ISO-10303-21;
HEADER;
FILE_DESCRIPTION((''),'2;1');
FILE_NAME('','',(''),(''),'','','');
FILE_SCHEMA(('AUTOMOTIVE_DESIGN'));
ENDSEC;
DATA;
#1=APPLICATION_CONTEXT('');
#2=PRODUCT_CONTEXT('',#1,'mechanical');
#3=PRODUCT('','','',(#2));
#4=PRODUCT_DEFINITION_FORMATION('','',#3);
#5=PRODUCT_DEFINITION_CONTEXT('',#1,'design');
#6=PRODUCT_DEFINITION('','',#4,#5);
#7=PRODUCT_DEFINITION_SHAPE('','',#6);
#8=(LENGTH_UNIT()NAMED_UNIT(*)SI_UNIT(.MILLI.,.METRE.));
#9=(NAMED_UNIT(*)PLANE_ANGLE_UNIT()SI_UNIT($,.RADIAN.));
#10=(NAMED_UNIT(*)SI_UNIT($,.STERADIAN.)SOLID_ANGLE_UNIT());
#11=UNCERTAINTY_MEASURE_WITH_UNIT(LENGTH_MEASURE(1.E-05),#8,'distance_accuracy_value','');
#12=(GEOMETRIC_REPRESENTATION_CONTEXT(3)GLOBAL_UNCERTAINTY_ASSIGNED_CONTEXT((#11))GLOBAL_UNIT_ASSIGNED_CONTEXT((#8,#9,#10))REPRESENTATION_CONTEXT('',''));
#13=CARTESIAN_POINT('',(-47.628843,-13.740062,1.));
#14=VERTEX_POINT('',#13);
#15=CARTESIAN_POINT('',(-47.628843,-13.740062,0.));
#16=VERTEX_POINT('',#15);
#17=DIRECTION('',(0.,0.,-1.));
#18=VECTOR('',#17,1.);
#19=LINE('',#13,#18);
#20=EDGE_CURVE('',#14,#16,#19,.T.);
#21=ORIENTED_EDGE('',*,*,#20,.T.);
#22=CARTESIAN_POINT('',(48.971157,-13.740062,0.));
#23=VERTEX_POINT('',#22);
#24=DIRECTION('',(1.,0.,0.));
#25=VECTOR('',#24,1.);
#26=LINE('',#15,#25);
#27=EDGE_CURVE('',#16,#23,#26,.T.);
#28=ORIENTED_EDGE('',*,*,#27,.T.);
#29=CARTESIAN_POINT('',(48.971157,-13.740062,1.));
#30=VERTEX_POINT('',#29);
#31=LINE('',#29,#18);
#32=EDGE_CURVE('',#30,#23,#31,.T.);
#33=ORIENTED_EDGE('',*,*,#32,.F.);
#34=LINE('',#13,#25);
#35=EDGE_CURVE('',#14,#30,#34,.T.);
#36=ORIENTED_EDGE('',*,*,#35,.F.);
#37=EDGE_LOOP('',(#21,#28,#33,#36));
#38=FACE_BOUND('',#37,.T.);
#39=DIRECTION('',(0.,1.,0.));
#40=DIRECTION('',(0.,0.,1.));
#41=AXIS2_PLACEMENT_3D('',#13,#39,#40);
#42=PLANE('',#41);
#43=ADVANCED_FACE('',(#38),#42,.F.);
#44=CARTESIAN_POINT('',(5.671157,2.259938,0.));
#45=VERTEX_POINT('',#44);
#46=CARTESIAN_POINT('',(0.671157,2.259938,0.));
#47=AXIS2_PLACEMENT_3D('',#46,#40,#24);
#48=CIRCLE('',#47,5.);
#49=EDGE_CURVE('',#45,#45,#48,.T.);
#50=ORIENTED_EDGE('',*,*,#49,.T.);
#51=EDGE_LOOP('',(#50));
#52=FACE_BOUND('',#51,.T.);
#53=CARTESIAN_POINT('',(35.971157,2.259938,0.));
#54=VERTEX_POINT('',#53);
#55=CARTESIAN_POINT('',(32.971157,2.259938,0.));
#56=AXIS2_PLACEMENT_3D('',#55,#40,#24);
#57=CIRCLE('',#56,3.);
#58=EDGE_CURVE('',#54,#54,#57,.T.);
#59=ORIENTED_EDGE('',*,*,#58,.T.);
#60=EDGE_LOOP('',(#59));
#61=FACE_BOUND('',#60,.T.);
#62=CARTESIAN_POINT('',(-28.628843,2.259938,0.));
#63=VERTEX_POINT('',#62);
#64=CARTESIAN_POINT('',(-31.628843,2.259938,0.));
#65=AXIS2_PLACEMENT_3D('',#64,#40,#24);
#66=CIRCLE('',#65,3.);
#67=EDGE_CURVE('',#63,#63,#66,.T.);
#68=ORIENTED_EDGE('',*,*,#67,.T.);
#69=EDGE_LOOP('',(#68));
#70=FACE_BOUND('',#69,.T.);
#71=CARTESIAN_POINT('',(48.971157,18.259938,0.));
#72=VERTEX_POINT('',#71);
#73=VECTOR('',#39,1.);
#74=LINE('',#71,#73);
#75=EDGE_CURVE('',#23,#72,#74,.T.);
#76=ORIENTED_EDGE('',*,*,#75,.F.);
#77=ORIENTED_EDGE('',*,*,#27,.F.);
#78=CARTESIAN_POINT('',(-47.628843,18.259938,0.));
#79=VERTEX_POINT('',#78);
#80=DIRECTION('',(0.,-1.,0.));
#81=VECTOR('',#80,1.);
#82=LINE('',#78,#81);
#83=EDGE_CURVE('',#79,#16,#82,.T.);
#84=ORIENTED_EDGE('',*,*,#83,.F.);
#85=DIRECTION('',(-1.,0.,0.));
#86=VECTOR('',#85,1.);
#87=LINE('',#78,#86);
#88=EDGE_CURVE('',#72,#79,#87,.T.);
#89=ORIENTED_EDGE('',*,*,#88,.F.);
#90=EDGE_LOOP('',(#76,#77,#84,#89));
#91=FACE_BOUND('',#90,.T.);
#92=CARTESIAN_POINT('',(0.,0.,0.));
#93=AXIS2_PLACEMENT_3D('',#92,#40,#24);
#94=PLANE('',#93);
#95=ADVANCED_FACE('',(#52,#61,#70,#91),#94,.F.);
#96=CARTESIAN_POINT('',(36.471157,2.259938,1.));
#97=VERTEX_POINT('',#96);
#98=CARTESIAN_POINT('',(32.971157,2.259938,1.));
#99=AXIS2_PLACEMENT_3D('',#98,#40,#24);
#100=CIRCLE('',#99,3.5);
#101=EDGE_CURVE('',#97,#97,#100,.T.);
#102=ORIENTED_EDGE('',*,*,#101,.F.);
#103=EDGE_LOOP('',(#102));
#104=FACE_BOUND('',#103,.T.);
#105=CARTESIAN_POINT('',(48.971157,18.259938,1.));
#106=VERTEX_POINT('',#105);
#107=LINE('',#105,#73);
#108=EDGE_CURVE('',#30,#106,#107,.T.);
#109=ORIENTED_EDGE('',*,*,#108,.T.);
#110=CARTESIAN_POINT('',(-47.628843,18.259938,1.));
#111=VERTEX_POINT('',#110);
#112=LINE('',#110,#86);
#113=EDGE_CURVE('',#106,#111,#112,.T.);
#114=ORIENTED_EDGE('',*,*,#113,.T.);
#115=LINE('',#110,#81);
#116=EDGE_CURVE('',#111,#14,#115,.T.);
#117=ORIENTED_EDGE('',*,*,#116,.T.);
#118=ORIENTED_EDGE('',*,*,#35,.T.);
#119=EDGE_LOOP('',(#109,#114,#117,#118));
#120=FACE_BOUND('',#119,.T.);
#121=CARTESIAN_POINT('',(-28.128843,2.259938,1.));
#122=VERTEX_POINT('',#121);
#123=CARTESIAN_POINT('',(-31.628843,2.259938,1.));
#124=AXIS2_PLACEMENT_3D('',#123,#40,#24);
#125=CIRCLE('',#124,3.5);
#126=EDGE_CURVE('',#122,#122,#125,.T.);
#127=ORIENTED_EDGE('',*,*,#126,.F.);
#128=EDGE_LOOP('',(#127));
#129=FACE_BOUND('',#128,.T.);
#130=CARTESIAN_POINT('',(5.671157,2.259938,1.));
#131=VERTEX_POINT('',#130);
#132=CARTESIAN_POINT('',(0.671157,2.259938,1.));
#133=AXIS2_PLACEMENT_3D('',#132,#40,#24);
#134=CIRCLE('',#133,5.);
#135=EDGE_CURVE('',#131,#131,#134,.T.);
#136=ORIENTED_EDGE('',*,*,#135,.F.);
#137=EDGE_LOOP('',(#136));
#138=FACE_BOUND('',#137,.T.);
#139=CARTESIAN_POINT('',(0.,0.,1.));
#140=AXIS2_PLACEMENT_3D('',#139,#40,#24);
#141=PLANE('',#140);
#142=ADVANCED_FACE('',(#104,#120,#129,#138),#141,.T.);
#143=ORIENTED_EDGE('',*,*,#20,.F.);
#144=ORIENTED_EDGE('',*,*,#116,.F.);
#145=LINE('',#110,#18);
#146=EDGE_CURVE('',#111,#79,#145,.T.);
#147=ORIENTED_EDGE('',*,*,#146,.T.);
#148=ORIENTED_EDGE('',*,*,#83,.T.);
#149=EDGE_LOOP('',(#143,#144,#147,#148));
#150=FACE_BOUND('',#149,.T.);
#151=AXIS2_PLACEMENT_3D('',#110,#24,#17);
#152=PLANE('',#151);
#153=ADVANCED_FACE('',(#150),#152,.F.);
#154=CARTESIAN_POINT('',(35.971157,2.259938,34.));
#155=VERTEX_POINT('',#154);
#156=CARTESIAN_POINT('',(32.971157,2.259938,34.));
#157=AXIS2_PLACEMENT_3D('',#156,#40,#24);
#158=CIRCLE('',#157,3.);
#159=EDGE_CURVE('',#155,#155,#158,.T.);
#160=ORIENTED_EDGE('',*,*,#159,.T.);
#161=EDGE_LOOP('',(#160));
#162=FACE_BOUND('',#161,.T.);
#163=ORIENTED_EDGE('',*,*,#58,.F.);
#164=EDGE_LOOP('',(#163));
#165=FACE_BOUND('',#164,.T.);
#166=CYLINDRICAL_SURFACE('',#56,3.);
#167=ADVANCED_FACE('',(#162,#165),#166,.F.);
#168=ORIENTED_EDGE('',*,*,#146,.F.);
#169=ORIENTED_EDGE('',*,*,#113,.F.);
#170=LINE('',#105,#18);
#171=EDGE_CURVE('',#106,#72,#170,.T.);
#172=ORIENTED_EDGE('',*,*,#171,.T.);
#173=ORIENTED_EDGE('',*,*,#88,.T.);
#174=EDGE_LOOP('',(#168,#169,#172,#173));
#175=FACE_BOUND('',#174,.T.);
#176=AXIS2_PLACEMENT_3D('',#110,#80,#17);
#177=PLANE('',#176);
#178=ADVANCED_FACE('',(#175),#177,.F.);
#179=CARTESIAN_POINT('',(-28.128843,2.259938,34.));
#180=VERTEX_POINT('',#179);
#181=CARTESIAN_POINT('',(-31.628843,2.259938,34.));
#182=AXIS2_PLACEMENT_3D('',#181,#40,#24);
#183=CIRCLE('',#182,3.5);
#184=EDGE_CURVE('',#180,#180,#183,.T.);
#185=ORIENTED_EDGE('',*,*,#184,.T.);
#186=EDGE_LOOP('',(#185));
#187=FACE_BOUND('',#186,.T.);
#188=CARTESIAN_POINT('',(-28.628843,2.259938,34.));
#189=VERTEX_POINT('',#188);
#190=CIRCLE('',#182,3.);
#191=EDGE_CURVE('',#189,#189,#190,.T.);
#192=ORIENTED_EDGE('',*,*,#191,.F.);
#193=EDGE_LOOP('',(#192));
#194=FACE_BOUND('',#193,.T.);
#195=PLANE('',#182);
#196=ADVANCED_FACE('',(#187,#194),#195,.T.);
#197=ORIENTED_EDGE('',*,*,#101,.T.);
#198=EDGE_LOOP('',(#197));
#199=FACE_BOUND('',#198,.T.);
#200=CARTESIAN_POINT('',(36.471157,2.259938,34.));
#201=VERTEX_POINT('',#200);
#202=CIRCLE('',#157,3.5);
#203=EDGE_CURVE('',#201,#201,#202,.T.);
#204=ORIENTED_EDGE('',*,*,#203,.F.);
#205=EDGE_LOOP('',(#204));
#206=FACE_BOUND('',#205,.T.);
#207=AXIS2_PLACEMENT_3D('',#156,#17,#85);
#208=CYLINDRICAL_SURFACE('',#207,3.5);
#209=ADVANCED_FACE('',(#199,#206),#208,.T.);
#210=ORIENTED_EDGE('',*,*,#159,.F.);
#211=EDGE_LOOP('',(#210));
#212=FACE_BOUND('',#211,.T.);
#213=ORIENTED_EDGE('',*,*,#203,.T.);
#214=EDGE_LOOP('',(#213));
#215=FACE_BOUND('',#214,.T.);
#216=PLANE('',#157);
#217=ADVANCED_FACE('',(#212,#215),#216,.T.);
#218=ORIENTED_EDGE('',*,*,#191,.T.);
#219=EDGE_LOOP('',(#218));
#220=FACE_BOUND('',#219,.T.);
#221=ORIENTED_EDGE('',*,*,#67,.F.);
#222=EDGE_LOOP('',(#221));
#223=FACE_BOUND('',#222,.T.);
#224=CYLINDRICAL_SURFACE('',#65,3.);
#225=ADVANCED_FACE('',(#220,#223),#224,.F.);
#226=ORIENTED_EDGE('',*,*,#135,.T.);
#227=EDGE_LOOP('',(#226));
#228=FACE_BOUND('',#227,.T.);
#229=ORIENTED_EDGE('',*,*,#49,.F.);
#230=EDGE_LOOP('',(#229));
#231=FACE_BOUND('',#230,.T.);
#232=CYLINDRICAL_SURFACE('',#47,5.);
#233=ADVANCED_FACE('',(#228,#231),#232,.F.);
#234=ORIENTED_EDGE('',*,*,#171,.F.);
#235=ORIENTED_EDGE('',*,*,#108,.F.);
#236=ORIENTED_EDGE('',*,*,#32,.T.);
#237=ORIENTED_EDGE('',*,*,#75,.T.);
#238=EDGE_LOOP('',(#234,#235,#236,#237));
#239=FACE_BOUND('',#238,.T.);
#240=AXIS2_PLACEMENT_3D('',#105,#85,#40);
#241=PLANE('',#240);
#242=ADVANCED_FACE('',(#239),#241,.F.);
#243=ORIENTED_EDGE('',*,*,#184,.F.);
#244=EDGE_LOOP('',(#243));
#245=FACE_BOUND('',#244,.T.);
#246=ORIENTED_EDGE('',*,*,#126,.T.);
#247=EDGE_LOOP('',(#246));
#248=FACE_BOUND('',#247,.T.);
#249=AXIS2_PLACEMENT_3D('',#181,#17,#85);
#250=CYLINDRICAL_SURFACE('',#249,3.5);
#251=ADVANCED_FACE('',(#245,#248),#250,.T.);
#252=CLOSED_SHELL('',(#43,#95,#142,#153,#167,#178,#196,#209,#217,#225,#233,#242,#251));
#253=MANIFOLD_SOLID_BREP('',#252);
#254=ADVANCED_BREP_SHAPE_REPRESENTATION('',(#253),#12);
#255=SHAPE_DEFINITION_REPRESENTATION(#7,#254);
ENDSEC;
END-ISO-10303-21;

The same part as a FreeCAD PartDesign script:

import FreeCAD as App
import Part
import Sketcher
from FreeCAD import Vector
Q = App.Units.Quantity


def add_polygon(sketch, points):
    """Adds a closed chain of lines whose ends are joined by coincident constraints."""
    first, n = sketch.GeometryCount, len(points)
    for a, b in zip(points, points[1:] + points[:1]):
        sketch.addGeometry(Part.LineSegment(App.Vector(*a, 0), App.Vector(*b, 0)), False)
    for i in range(n):
        sketch.addConstraint(Sketcher.Constraint("Coincident", first + i, 2, first + (i + 1) % n, 1))

doc = App.newDocument("Part")
params = doc.addObject("Spreadsheet::Sheet", "Params")
for row, (alias, value) in enumerate([
    ("sketch1_height", "32 mm"),
    ("sketch1_width", "96.6 mm"),
    ("pad1_length", "1 mm"),
    ("sketch2_diameter", "7 mm"),
    ("pad2_length", "33 mm"),
    ("sketch3_diameter", "6 mm"),
    ("sketch3_diameter2", "10 mm"),
], start=1):
    params.set(f"A{row}", alias)
    params.set(f"B{row}", "=" + value)
    params.setAlias(f"B{row}", alias)

body = doc.addObject("PartDesign::Body", "Body")

# Sketch on XY plane
sketch1 = body.newObject("Sketcher::SketchObject", "Sketch")
sketch1.AttachmentSupport = (doc.getObject("XY_Plane"), [""])
sketch1.MapMode = "FlatFace"
add_polygon(sketch1, [(-47.628843, 18.259938), (-47.628843, -13.740062), (48.971157, -13.740062), (48.971157, 18.259938)])  # lines 0-3
sketch1.addConstraint(Sketcher.Constraint("Vertical", 0))
sketch1.addConstraint(Sketcher.Constraint("Horizontal", 1))
sketch1.addConstraint(Sketcher.Constraint("Vertical", 2))
sketch1.addConstraint(Sketcher.Constraint("Horizontal", 3))
sketch1.addConstraint(Sketcher.Constraint("DistanceY", 0, 2, 0, 1, Q("32 mm")))
sketch1.addConstraint(Sketcher.Constraint("DistanceX", 1, 1, 1, 2, Q("96.6 mm")))
sketch1.addConstraint(Sketcher.Constraint("DistanceY", 0, 2, -1, 1, Q("13.740062 mm")))
sketch1.addConstraint(Sketcher.Constraint("DistanceX", 0, 2, -1, 1, Q("47.628843 mm")))
sketch1.setExpression("Constraints[8]", "Params.sketch1_height")
sketch1.setExpression("Constraints[9]", "Params.sketch1_width")
pad1 = body.newObject("PartDesign::Pad", "Pad")
pad1.Profile = sketch1
pad1.setExpression("Length", "Params.pad1_length")

# Sketch on XY plane
sketch2 = body.newObject("Sketcher::SketchObject", "Sketch001")
sketch2.AttachmentSupport = (doc.getObject("XY_Plane"), [""])
sketch2.MapMode = "FlatFace"
sketch2.AttachmentOffset = App.Placement(Vector(0, 0, 1), App.Rotation())
sketch2.addGeometry(Part.Circle(Vector(-31.628843, 2.259938, 0), Vector(0, 0, 1), 3.5), False)
sketch2.addGeometry(Part.Circle(Vector(32.971157, 2.259938, 0), Vector(0, 0, 1), 3.5), False)
sketch2.addConstraint(Sketcher.Constraint("Equal", 0, 1))
sketch2.addConstraint(Sketcher.Constraint("Horizontal", 0, 3, 1, 3))
sketch2.addConstraint(Sketcher.Constraint("Diameter", 0, Q("7 mm")))
sketch2.addConstraint(Sketcher.Constraint("DistanceX", 0, 3, 1, 3, Q("64.6 mm")))
sketch2.addConstraint(Sketcher.Constraint("DistanceY", -1, 1, 0, 3, Q("2.259938 mm")))
sketch2.addConstraint(Sketcher.Constraint("DistanceX", 0, 3, -1, 1, Q("31.628843 mm")))
sketch2.setExpression("Constraints[2]", "Params.sketch2_diameter")
pad2 = body.newObject("PartDesign::Pad", "Pad001")
pad2.Profile = sketch2
pad2.setExpression("Length", "Params.pad2_length")

# Sketch on XY plane
sketch3 = body.newObject("Sketcher::SketchObject", "Sketch002")
sketch3.AttachmentSupport = (doc.getObject("XY_Plane"), [""])
sketch3.MapMode = "FlatFace"
sketch3.AttachmentOffset = App.Placement(Vector(0, 0, 34), App.Rotation())
sketch3.addGeometry(Part.Circle(Vector(-31.628843, 2.259938, 0), Vector(0, 0, 1), 3), False)
sketch3.addGeometry(Part.Circle(Vector(32.971157, 2.259938, 0), Vector(0, 0, 1), 3), False)
sketch3.addGeometry(Part.Circle(Vector(0.671157, 2.259938, 0), Vector(0, 0, 1), 5), False)
sketch3.addConstraint(Sketcher.Constraint("Equal", 0, 1))
sketch3.addConstraint(Sketcher.Constraint("Horizontal", 0, 3, 1, 3))
sketch3.addConstraint(Sketcher.Constraint("Horizontal", 1, 3, 2, 3))
sketch3.addConstraint(Sketcher.Constraint("Diameter", 0, Q("6 mm")))
sketch3.addConstraint(Sketcher.Constraint("Diameter", 2, Q("10 mm")))
sketch3.addConstraint(Sketcher.Constraint("DistanceX", 0, 3, 1, 3, Q("64.6 mm")))
sketch3.addConstraint(Sketcher.Constraint("DistanceX", 0, 3, 2, 3, Q("32.3 mm")))
sketch3.addConstraint(Sketcher.Constraint("DistanceY", -1, 1, 0, 3, Q("2.259938 mm")))
sketch3.addConstraint(Sketcher.Constraint("DistanceX", 0, 3, -1, 1, Q("31.628843 mm")))
sketch3.setExpression("Constraints[3]", "Params.sketch3_diameter")
sketch3.setExpression("Constraints[4]", "Params.sketch3_diameter2")
pocket1 = body.newObject("PartDesign::Pocket", "Pocket")
pocket1.Profile = sketch3
pocket1.Type = "ThroughAll"

doc.recompute()
